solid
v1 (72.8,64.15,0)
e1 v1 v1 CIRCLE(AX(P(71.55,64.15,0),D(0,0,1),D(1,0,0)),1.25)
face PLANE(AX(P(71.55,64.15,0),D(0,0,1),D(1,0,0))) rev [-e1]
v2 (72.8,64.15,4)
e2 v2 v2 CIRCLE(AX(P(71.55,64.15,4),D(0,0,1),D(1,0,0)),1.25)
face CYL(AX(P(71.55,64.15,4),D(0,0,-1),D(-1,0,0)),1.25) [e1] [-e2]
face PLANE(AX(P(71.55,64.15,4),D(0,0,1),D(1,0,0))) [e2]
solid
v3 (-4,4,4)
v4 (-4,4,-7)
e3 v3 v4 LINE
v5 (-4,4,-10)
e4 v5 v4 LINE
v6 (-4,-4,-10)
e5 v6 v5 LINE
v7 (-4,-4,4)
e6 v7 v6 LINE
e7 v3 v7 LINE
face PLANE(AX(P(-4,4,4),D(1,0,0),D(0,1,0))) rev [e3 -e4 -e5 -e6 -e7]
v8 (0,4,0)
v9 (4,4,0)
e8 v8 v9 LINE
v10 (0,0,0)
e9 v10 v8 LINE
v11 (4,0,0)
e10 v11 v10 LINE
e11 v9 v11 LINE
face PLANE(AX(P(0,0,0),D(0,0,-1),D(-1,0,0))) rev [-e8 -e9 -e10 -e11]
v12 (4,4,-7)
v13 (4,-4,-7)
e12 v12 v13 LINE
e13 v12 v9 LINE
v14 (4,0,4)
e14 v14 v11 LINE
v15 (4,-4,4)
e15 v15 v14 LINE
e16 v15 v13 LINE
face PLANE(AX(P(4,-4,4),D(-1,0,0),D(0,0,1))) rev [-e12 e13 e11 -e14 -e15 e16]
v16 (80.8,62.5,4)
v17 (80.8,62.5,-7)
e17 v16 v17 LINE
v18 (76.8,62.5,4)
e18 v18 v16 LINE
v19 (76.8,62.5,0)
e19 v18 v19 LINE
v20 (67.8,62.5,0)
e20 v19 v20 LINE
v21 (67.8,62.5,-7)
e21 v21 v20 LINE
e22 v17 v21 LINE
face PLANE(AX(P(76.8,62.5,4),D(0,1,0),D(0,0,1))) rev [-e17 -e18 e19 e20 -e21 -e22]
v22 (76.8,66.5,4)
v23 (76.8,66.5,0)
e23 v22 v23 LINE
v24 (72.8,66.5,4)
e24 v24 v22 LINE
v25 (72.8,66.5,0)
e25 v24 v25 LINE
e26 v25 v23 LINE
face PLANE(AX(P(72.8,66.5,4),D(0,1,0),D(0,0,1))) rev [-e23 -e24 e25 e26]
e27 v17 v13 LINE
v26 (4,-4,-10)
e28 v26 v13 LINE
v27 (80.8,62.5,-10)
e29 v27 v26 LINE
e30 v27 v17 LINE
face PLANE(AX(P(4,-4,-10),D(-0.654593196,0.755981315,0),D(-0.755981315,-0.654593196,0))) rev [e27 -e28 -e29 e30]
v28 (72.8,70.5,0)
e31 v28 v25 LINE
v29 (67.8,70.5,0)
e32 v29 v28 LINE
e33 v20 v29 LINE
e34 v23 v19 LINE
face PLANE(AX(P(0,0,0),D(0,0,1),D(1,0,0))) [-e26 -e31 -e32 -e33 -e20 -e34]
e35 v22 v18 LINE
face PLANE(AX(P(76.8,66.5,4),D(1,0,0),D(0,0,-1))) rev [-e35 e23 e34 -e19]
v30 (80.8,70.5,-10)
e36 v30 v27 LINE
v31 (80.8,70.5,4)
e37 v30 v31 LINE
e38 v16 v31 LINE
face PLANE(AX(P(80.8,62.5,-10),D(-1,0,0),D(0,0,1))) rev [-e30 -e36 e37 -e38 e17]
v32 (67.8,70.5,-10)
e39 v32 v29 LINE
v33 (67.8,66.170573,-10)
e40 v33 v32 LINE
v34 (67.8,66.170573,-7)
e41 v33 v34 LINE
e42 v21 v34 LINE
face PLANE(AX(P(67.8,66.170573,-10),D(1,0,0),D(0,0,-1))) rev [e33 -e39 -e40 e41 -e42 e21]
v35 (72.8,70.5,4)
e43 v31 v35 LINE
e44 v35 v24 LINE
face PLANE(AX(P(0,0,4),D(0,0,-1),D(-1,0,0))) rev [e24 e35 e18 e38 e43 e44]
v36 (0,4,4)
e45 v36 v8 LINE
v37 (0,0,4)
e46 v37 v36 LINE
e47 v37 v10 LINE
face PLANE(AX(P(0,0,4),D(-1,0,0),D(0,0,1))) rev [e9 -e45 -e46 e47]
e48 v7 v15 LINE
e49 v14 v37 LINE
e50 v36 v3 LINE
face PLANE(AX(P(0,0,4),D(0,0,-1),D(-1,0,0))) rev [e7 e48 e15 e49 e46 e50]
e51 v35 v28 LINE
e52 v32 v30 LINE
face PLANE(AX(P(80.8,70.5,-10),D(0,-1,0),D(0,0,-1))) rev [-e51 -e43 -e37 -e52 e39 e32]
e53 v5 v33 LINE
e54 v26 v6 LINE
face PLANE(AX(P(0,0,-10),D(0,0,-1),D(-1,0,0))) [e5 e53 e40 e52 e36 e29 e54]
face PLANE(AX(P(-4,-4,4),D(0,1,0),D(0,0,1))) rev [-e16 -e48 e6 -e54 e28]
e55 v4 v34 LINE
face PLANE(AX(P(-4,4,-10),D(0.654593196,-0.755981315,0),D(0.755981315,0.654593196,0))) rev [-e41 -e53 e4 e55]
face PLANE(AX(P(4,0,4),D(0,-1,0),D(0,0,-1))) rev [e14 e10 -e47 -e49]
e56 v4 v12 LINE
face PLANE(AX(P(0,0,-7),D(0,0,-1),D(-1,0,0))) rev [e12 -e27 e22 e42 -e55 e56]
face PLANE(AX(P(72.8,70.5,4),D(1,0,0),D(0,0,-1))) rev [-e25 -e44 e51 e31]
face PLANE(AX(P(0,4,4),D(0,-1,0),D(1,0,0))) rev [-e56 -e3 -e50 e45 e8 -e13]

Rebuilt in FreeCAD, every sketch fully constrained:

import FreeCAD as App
import Part
import Sketcher

doc = App.newDocument("Part")
params = doc.addObject("Spreadsheet::Sheet", "Params")
for row, (alias, value) in enumerate([
    ("sketch1_width", "4 mm"),
    ("pad1_length", "4 mm"),
    ("sketch2_width", "4 mm"),
    ("pad2_length", "4 mm"),
    ("sketch3_width", "13 mm"),
    ("sketch3_width2", "8 mm"),
    ("pad3_length", "7 mm"),
    ("sketch4_width", "13 mm"),
    ("sketch4_width2", "8 mm"),
    ("pad4_length", "3 mm"),
    ("sketch5_diameter", "2.5 mm"),
    ("pad5_length", "4 mm"),
], start=1):
    params.set(f"A{row}", alias)
    params.set(f"B{row}", "=" + value)
    params.setAlias(f"B{row}", alias)

body = doc.addObject("PartDesign::Body", "Body")

sketch1 = body.newObject("Sketcher::SketchObject", "Sketch")
sketch1.AttachmentSupport = (doc.getObject("XY_Plane"), [""])
sketch1.MapMode = "FlatFace"
sketch1.addGeometry([
    Part.LineSegment(App.Vector(0, 0, 0), App.Vector(0, 4, 0)),
    Part.LineSegment(App.Vector(0, 4, 0), App.Vector(-4, 4, 0)),
    Part.LineSegment(App.Vector(-4, 4, 0), App.Vector(-4, -4, 0)),
    Part.LineSegment(App.Vector(-4, -4, 0), App.Vector(4, -4, 0)),
    Part.LineSegment(App.Vector(4, -4, 0), App.Vector(4, 0, 0)),
    Part.LineSegment(App.Vector(4, 0, 0), App.Vector(0, 0, 0)),
], False)
sketch1.addConstraint([
    Sketcher.Constraint("Coincident", 0, 2, 1, 1),
    Sketcher.Constraint("Coincident", 1, 2, 2, 1),
    Sketcher.Constraint("Coincident", 2, 2, 3, 1),
    Sketcher.Constraint("Coincident", 3, 2, 4, 1),
    Sketcher.Constraint("Coincident", 4, 2, 5, 1),
    Sketcher.Constraint("Coincident", 5, 2, 0, 1),
    Sketcher.Constraint("Vertical", 0),
    Sketcher.Constraint("Horizontal", 1),
    Sketcher.Constraint("Vertical", 2),
    Sketcher.Constraint("Horizontal", 3),
    Sketcher.Constraint("Vertical", 4),
    Sketcher.Constraint("Horizontal", 5),
    Sketcher.Constraint("Coincident", 5, 2, -1, 1),
    Sketcher.Constraint("Symmetric", 1, 2, 3, 2, -1, 1),
    Sketcher.Constraint("Equal", 5, 0),
    Sketcher.Constraint("DistanceX", 1, 2, 1, 1, 4.0),
])
sketch1.setExpression("Constraints[15]", "Params.sketch1_width")
pad1 = body.newObject("PartDesign::Pad", "Pad")
pad1.Profile = sketch1
pad1.setExpression("Length", "Params.pad1_length")
body2 = doc.addObject("PartDesign::Body", "Body001")

sketch2 = body2.newObject("Sketcher::SketchObject", "Sketch001")
sketch2.AttachmentSupport = (doc.getObject("XY_Plane001"), [""])
sketch2.MapMode = "FlatFace"
sketch2.addGeometry([
    Part.LineSegment(App.Vector(76.8, 66.5, 0), App.Vector(76.8, 62.5, 0)),
    Part.LineSegment(App.Vector(76.8, 62.5, 0), App.Vector(80.8, 62.5, 0)),
    Part.LineSegment(App.Vector(80.8, 62.5, 0), App.Vector(80.8, 70.5, 0)),
    Part.LineSegment(App.Vector(80.8, 70.5, 0), App.Vector(72.8, 70.5, 0)),
    Part.LineSegment(App.Vector(72.8, 70.5, 0), App.Vector(72.8, 66.5, 0)),
    Part.LineSegment(App.Vector(72.8, 66.5, 0), App.Vector(76.8, 66.5, 0)),
], False)
sketch2.addConstraint([
    Sketcher.Constraint("Coincident", 0, 2, 1, 1),
    Sketcher.Constraint("Coincident", 1, 2, 2, 1),
    Sketcher.Constraint("Coincident", 2, 2, 3, 1),
    Sketcher.Constraint("Coincident", 3, 2, 4, 1),
    Sketcher.Constraint("Coincident", 4, 2, 5, 1),
    Sketcher.Constraint("Coincident", 5, 2, 0, 1),
    Sketcher.Constraint("Vertical", 0),
    Sketcher.Constraint("Horizontal", 1),
    Sketcher.Constraint("Vertical", 2),
    Sketcher.Constraint("Horizontal", 3),
    Sketcher.Constraint("Vertical", 4),
    Sketcher.Constraint("Horizontal", 5),
    Sketcher.Constraint("Equal", 1, 5),
    Sketcher.Constraint("Equal", 5, 0),
    Sketcher.Constraint("Equal", 3, 2),
    Sketcher.Constraint("DistanceX", 1, 1, 1, 2, 4.0),
    Sketcher.Constraint("DistanceX", -1, 1, 0, 2, 76.8),
    Sketcher.Constraint("DistanceY", -1, 1, 0, 2, 62.5),
])
sketch2.setExpression("Constraints[15]", "Params.sketch2_width")
pad2 = body2.newObject("PartDesign::Pad", "Pad001")
pad2.Profile = sketch2
pad2.setExpression("Length", "Params.pad2_length")
body.AllowCompound = True
doc.recompute()

boolean = body.newObject("PartDesign::Boolean", "Boolean")
boolean.Type = "Fuse"
boolean.addObjects([body2])

sketch3 = body.newObject("Sketcher::SketchObject", "Sketch002")
sketch3.AttachmentSupport = (doc.getObject("XY_Plane"), [""])
sketch3.MapMode = "FlatFace"
sketch3.addGeometry([
    Part.LineSegment(App.Vector(81, 70, 0), App.Vector(81, 62, 0)),
    Part.LineSegment(App.Vector(81, 62, 0), App.Vector(68, 62, 0)),
    Part.LineSegment(App.Vector(68, 62, 0), App.Vector(68, 70, 0)),
    Part.LineSegment(App.Vector(68, 70, 0), App.Vector(81, 70, 0)),
    Part.LineSegment(App.Vector(4, 4, 0), App.Vector(4, -4, 0)),
    Part.LineSegment(App.Vector(4, -4, 0), App.Vector(-4, -4, 0)),
    Part.LineSegment(App.Vector(-4, -4, 0), App.Vector(-4, 4, 0)),
    Part.LineSegment(App.Vector(-4, 4, 0), App.Vector(4, 4, 0)),
], False)
sketch3.addConstraint([
    Sketcher.Constraint("Coincident", 0, 2, 1, 1),
    Sketcher.Constraint("Coincident", 1, 2, 2, 1),
    Sketcher.Constraint("Coincident", 2, 2, 3, 1),
    Sketcher.Constraint("Coincident", 3, 2, 0, 1),
    Sketcher.Constraint("Coincident", 4, 2, 5, 1),
    Sketcher.Constraint("Coincident", 5, 2, 6, 1),
    Sketcher.Constraint("Coincident", 6, 2, 7, 1),
    Sketcher.Constraint("Coincident", 7, 2, 4, 1),
    Sketcher.Constraint("Vertical", 0),
    Sketcher.Constraint("Horizontal", 1),
    Sketcher.Constraint("Vertical", 2),
    Sketcher.Constraint("Horizontal", 3),
    Sketcher.Constraint("Vertical", 4),
    Sketcher.Constraint("Horizontal", 5),
    Sketcher.Constraint("Vertical", 6),
    Sketcher.Constraint("Horizontal", 7),
    Sketcher.Constraint("Symmetric", 4, 2, 6, 2, -1, 1),
    Sketcher.Constraint("Equal", 7, 0),
    Sketcher.Constraint("Equal", 2, 4),
    Sketcher.Constraint("DistanceX", 1, 2, 1, 1, 13.0),
    Sketcher.Constraint("DistanceX", 5, 2, 5, 1, 8.0),
    Sketcher.Constraint("DistanceX", -1, 1, 0, 2, 80.8),
    Sketcher.Constraint("DistanceY", -1, 1, 0, 2, 62.5),
])
sketch3.setExpression("Constraints[19]", "Params.sketch3_width")
sketch3.setExpression("Constraints[20]", "Params.sketch3_width2")
pad3 = body.newObject("PartDesign::Pad", "Pad002")
pad3.Profile = sketch3
pad3.setExpression("Length", "Params.pad3_length")
pad3.Reversed = True

sketch4 = body.newObject("Sketcher::SketchObject", "Sketch003")
sketch4.AttachmentSupport = (doc.getObject("XY_Plane"), [""])
sketch4.MapMode = "FlatFace"
sketch4.AttachmentOffset = App.Placement(App.Vector(0, 0, -7), App.Rotation())
sketch4.addGeometry([
    Part.LineSegment(App.Vector(-4, -4, 0), App.Vector(-4, 4, 0)),
    Part.LineSegment(App.Vector(-4, 4, 0), App.Vector(67.8, 66.2, 0)),
    Part.LineSegment(App.Vector(67.8, 66.2, 0), App.Vector(67.8, 70.5, 0)),
    Part.LineSegment(App.Vector(67.8, 70.5, 0), App.Vector(80.8, 70.5, 0)),
    Part.LineSegment(App.Vector(80.8, 70.5, 0), App.Vector(80.8, 62.5, 0)),
    Part.LineSegment(App.Vector(80.8, 62.5, 0), App.Vector(4, -4, 0)),
    Part.LineSegment(App.Vector(4, -4, 0), App.Vector(-4, -4, 0)),
], False)
sketch4.addConstraint([
    Sketcher.Constraint("Coincident", 0, 2, 1, 1),
    Sketcher.Constraint("Coincident", 1, 2, 2, 1),
    Sketcher.Constraint("Coincident", 2, 2, 3, 1),
    Sketcher.Constraint("Coincident", 3, 2, 4, 1),
    Sketcher.Constraint("Coincident", 4, 2, 5, 1),
    Sketcher.Constraint("Coincident", 5, 2, 6, 1),
    Sketcher.Constraint("Coincident", 6, 2, 0, 1),
    Sketcher.Constraint("Vertical", 0),
    Sketcher.Constraint("Vertical", 2),
    Sketcher.Constraint("Horizontal", 3),
    Sketcher.Constraint("Vertical", 4),
    Sketcher.Constraint("Horizontal", 6),
    Sketcher.Constraint("Symmetric", 0, 2, 5, 2, -1, 1),
    Sketcher.Constraint("Parallel", 1, 5),
    Sketcher.Constraint("Equal", 6, 0),
    Sketcher.Constraint("Equal", 0, 4),
    Sketcher.Constraint("DistanceX", 3, 1, 3, 2, 13.0),
    Sketcher.Constraint("DistanceX", 6, 2, 6, 1, 8.0),
    Sketcher.Constraint("DistanceX", -1, 1, 1, 2, 67.8),
    Sketcher.Constraint("DistanceY", -1, 1, 2, 2, 70.5),
])
sketch4.setExpression("Constraints[16]", "Params.sketch4_width")
sketch4.setExpression("Constraints[17]", "Params.sketch4_width2")
pad4 = body.newObject("PartDesign::Pad", "Pad003")
pad4.Profile = sketch4
pad4.setExpression("Length", "Params.pad4_length")
pad4.Reversed = True
body3 = doc.addObject("PartDesign::Body", "Body002")

sketch5 = body3.newObject("Sketcher::SketchObject", "Sketch004")
sketch5.AttachmentSupport = (doc.getObject("XY_Plane002"), [""])
sketch5.MapMode = "FlatFace"
sketch5.addGeometry(Part.Circle(App.Vector(71.5, 64.2, 0), App.Vector(0, 0, 1), 1.2), False)
sketch5.addConstraint([
    Sketcher.Constraint("Diameter", 0, 2.5),
    Sketcher.Constraint("DistanceX", -1, 1, 0, 3, 71.55),
    Sketcher.Constraint("DistanceY", -1, 1, 0, 3, 64.15),
])
sketch5.setExpression("Constraints[0]", "Params.sketch5_diameter")
pad5 = body3.newObject("PartDesign::Pad", "Pad004")
pad5.Profile = sketch5
pad5.setExpression("Length", "Params.pad5_length")

doc.recompute()
